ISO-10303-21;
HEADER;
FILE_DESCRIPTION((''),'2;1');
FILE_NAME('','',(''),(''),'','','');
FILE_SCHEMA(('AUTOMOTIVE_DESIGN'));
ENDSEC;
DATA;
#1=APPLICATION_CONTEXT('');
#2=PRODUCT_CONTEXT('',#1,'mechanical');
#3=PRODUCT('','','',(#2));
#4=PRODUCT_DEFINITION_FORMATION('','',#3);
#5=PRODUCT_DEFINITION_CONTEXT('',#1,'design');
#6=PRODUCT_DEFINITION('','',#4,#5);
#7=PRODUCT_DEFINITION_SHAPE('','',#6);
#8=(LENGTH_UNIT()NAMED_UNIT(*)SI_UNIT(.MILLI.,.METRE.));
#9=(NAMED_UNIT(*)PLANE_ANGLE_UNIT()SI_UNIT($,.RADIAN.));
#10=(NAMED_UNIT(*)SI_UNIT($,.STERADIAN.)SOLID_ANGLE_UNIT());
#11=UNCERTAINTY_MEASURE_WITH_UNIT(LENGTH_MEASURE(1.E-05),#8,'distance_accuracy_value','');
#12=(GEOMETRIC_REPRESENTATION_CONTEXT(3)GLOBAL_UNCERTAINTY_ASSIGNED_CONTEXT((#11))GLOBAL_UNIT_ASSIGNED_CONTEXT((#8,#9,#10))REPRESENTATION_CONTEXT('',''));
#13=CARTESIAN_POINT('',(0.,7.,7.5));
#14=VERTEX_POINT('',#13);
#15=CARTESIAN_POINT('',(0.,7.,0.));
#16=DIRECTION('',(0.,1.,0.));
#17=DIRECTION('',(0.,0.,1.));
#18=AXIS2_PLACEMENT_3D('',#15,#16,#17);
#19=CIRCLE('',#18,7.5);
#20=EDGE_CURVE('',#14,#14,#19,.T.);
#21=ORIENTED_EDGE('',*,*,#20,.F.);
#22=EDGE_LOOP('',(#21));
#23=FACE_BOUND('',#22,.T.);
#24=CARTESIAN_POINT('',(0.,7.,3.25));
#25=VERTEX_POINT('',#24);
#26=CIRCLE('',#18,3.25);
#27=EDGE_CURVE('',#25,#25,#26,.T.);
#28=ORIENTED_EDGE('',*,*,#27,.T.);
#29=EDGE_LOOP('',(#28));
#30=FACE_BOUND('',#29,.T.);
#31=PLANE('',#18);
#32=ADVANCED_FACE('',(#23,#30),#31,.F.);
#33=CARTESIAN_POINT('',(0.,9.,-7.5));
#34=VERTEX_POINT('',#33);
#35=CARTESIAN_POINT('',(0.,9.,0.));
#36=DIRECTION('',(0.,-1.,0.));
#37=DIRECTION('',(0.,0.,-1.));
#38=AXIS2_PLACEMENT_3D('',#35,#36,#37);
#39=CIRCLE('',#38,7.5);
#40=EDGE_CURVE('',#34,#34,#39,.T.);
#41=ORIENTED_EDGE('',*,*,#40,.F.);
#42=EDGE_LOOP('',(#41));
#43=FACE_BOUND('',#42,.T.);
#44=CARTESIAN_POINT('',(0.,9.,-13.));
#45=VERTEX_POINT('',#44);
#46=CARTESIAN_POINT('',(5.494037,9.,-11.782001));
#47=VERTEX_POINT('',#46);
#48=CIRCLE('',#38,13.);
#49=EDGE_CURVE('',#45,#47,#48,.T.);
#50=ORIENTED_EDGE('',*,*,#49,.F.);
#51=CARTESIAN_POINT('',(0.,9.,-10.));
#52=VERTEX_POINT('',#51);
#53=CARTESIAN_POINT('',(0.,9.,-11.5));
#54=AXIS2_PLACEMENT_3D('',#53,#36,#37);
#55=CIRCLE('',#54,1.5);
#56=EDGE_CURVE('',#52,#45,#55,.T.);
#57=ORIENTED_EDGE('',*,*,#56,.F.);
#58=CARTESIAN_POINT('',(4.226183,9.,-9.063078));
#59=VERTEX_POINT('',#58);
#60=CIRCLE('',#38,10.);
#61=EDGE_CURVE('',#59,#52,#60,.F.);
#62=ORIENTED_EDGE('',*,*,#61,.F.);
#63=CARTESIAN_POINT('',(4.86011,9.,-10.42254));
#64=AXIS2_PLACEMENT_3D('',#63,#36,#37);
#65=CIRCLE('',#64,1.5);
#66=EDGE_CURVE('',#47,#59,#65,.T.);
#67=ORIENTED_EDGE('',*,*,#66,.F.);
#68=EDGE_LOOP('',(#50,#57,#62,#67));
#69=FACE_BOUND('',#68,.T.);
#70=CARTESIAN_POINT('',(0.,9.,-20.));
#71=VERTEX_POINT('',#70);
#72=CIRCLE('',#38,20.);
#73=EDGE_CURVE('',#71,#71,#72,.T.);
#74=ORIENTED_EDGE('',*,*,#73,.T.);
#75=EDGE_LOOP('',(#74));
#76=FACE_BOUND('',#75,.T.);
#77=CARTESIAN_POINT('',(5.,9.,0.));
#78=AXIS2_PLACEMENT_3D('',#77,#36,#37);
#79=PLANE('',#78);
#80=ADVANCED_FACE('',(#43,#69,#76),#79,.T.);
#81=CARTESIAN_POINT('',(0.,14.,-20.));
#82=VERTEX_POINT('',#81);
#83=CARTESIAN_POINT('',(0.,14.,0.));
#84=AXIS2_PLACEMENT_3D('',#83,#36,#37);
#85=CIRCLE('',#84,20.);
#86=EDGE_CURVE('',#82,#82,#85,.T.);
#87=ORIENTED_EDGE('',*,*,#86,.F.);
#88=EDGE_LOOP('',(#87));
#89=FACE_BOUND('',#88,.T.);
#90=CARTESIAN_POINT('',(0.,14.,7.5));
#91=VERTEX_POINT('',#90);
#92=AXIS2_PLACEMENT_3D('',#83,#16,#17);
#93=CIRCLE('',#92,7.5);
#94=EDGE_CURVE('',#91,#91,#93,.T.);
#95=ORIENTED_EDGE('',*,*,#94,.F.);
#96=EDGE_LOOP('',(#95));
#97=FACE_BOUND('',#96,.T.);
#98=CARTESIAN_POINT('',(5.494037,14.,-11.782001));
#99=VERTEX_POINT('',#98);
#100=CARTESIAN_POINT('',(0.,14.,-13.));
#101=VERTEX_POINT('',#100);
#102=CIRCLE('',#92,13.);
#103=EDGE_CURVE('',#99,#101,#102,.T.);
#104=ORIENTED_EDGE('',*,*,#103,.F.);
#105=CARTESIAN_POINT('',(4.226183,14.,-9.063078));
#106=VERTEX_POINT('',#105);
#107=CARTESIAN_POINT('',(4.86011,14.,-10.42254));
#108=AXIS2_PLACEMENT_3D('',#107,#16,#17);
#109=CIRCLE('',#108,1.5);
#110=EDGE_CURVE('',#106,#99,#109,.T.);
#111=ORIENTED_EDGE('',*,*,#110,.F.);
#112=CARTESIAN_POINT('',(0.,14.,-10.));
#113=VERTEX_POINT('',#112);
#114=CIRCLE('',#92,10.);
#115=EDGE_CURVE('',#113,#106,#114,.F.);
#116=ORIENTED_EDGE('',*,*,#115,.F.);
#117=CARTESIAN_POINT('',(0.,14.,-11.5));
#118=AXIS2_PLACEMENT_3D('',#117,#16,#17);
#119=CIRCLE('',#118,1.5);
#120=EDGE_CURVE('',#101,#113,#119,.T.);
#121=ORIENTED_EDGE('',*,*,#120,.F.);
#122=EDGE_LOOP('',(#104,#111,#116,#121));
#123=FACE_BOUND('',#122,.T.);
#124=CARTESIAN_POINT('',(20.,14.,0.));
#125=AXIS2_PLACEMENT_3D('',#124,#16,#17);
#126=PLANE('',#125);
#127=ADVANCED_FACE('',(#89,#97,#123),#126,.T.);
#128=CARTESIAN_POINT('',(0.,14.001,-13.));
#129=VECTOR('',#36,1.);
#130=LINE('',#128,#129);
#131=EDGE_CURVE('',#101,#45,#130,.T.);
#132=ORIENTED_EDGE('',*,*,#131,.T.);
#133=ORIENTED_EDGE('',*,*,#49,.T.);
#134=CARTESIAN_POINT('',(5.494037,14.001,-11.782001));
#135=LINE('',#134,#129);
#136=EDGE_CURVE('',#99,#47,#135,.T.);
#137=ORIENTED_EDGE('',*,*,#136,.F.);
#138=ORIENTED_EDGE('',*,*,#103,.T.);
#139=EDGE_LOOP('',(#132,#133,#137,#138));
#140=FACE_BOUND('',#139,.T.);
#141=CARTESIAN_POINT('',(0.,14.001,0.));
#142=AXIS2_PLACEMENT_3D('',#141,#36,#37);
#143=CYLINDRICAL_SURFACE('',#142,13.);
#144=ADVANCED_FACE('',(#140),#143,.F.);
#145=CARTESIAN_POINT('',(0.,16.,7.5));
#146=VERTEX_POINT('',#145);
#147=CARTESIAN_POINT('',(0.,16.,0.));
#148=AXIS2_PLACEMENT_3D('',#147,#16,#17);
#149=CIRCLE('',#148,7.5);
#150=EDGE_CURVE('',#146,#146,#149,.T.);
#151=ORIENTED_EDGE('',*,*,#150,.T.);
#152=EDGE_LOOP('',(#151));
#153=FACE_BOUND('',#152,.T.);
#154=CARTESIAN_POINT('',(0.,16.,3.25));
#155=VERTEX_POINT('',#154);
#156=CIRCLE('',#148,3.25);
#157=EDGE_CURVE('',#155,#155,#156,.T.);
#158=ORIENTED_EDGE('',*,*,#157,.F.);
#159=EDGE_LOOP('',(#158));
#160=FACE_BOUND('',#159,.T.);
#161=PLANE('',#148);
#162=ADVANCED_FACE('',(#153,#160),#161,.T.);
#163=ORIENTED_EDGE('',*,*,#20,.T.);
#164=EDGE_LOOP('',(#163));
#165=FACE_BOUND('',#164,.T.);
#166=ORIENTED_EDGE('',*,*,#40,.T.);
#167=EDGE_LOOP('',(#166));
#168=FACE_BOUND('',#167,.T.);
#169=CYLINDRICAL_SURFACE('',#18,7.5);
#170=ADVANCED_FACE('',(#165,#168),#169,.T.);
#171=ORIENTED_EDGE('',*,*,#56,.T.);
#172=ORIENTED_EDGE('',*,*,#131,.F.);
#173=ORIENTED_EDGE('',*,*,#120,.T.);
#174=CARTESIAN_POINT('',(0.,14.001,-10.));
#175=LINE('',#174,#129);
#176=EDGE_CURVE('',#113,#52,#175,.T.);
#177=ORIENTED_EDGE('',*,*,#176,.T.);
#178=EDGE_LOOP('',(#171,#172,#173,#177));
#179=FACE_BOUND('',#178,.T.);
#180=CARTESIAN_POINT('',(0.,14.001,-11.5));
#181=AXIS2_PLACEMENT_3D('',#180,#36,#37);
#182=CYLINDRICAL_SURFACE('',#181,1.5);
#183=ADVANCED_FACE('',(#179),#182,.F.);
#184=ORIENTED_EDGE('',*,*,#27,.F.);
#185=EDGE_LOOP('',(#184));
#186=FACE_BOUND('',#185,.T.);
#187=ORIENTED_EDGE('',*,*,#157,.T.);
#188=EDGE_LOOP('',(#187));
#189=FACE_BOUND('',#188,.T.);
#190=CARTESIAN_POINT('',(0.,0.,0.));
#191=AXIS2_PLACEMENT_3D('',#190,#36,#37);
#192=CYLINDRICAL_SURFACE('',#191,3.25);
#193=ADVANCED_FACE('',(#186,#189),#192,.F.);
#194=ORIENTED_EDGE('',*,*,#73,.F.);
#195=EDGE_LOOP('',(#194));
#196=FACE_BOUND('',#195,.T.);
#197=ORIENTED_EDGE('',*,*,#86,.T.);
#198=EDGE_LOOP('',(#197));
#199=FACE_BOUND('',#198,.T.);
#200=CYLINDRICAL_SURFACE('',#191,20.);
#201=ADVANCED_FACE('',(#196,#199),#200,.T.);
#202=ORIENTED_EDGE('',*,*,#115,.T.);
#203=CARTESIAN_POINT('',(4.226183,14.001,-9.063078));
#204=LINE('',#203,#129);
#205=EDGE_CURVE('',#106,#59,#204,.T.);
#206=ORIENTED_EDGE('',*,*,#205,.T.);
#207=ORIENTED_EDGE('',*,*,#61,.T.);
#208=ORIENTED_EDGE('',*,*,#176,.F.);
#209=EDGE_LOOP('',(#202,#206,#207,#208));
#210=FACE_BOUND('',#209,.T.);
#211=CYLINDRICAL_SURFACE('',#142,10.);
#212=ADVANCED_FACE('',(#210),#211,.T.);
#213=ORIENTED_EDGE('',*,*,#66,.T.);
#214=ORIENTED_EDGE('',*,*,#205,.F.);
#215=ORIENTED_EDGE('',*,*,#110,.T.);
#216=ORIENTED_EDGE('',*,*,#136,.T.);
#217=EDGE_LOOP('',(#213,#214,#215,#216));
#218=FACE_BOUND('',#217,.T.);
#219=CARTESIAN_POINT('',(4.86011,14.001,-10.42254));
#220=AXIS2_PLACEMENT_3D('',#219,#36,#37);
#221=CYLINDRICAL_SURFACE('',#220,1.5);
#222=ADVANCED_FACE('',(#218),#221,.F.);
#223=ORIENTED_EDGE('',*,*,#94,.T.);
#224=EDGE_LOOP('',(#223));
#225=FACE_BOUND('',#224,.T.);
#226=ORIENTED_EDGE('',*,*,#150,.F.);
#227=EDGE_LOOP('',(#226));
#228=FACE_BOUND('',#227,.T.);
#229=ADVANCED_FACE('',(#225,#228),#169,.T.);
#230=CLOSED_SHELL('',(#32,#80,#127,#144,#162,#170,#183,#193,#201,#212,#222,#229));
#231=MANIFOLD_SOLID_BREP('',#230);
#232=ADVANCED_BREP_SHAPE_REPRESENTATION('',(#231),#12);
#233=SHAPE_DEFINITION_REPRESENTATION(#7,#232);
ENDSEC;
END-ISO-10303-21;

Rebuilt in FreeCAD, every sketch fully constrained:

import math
import FreeCAD as App
import Part
import Sketcher

V = App.Vector


def add_polygon(sketch, points):
    """Adds a closed chain of lines whose ends are joined by coincident constraints."""
    first, n = sketch.GeometryCount, len(points)
    for a, b in zip(points, points[1:] + points[:1]):
        sketch.addGeometry(Part.LineSegment(App.Vector(*a, 0), App.Vector(*b, 0)), False)
    for i in range(n):
        sketch.addConstraint(Sketcher.Constraint("Coincident", first + i, 2, first + (i + 1) % n, 1))

doc = App.newDocument("Part")
body = doc.addObject("PartDesign::Body", "Body")

# Sketch on XY plane
sketch1 = body.newObject("Sketcher::SketchObject", "Sketch")
sketch1.AttachmentSupport = (doc.getObject("XY_Plane"), [""])
sketch1.MapMode = "FlatFace"
add_polygon(sketch1, [(3.2, 14), (3.2, 11.5), (5, 11.5), (5, 9), (20, 9), (20, 14)])  # lines 0-5
sketch1.addConstraint([
    Sketcher.Constraint("Vertical", 0),
    Sketcher.Constraint("Horizontal", 1),
    Sketcher.Constraint("Vertical", 2),
    Sketcher.Constraint("Horizontal", 3),
    Sketcher.Constraint("Vertical", 4),
    Sketcher.Constraint("Horizontal", 5),
    Sketcher.Constraint("Equal", 0, 2),
    Sketcher.Constraint("DistanceX", 3, 1, 3, 2, 15.0),
    Sketcher.Constraint("DistanceY", 4, 1, 4, 2, 5.0),
    Sketcher.Constraint("DistanceX", -1, 1, 1, 2, 5.0),
    Sketcher.Constraint("DistanceY", -1, 1, 2, 2, 9.0),
    Sketcher.Constraint("DistanceX", 1, 1, 1, 2, 1.75),
])
revolution = body.newObject("PartDesign::Revolution", "Revolution")
revolution.Profile = sketch1
revolution.ReferenceAxis = (sketch1, ["V_Axis"])
revolution.Angle = 360

# Sketch on XZ plane
sketch2 = body.newObject("Sketcher::SketchObject", "Sketch001")
sketch2.AttachmentSupport = (doc.getObject("XZ_Plane"), [""])
sketch2.MapMode = "FlatFace"
sketch2.addGeometry([
    Part.ArcOfCircle(Part.Circle(V(0, 0, 0), V(0, 0, 1), 10), math.radians(-90), math.radians(-65)),
    Part.ArcOfCircle(Part.Circle(V(4.9, -10.4, 0), V(0, 0, 1), 1.5), math.radians(-65), math.radians(115)),
    Part.ArcOfCircle(Part.Circle(V(0, 0, 0), V(0, 0, 1), 13), math.radians(-90), math.radians(-65)),
    Part.ArcOfCircle(Part.Circle(V(0, -11.5, 0), V(0, 0, 1), 1.5), math.radians(90), math.radians(270)),
], False)
sketch2.addConstraint([
    Sketcher.Constraint("Tangent", 0, 2, 1, 2),
    Sketcher.Constraint("Tangent", 1, 1, 2, 2),
    Sketcher.Constraint("Tangent", 2, 1, 3, 2),
    Sketcher.Constraint("Tangent", 3, 1, 0, 1),
    Sketcher.Constraint("Coincident", 0, 3, -1, 1),
    Sketcher.Constraint("Coincident", 2, 3, -1, 1),
    Sketcher.Constraint("PointOnObject", 3, 3, -2),
    Sketcher.Constraint("Radius", 0, 10.0),
    Sketcher.Constraint("Radius", 2, 13.0),
    Sketcher.Constraint("DistanceY", 1, 1, -1, 1, 11.782001),
])
pocket1 = body.newObject("PartDesign::Pocket", "Pocket")
pocket1.Profile = sketch2
pocket1.Length = 14

# Sketch on XZ plane
sketch3 = body.newObject("Sketcher::SketchObject", "Sketch002")
sketch3.AttachmentSupport = (doc.getObject("XZ_Plane"), [""])
sketch3.MapMode = "FlatFace"
sketch3.AttachmentOffset = App.Placement(V(0, 0, -14), App.Rotation())
sketch3.addGeometry([
    Part.Circle(V(0, 0, 0), V(0, 0, 1), 7.5),
    Part.Circle(V(0, 0, 0), V(0, 0, 1), 3.2),
], False)
sketch3.addConstraint([
    Sketcher.Constraint("Coincident", 0, 3, -1, 1),
    Sketcher.Constraint("Coincident", 1, 3, -1, 1),
    Sketcher.Constraint("Diameter", 0, 15.0),
    Sketcher.Constraint("Diameter", 1, 6.5),
])
pad1 = body.newObject("PartDesign::Pad", "Pad")
pad1.Profile = sketch3
pad1.Type = "TwoLengths"
pad1.Length = 2
pad1.Length2 = 7
pad1.Reversed = True

doc.recompute()
